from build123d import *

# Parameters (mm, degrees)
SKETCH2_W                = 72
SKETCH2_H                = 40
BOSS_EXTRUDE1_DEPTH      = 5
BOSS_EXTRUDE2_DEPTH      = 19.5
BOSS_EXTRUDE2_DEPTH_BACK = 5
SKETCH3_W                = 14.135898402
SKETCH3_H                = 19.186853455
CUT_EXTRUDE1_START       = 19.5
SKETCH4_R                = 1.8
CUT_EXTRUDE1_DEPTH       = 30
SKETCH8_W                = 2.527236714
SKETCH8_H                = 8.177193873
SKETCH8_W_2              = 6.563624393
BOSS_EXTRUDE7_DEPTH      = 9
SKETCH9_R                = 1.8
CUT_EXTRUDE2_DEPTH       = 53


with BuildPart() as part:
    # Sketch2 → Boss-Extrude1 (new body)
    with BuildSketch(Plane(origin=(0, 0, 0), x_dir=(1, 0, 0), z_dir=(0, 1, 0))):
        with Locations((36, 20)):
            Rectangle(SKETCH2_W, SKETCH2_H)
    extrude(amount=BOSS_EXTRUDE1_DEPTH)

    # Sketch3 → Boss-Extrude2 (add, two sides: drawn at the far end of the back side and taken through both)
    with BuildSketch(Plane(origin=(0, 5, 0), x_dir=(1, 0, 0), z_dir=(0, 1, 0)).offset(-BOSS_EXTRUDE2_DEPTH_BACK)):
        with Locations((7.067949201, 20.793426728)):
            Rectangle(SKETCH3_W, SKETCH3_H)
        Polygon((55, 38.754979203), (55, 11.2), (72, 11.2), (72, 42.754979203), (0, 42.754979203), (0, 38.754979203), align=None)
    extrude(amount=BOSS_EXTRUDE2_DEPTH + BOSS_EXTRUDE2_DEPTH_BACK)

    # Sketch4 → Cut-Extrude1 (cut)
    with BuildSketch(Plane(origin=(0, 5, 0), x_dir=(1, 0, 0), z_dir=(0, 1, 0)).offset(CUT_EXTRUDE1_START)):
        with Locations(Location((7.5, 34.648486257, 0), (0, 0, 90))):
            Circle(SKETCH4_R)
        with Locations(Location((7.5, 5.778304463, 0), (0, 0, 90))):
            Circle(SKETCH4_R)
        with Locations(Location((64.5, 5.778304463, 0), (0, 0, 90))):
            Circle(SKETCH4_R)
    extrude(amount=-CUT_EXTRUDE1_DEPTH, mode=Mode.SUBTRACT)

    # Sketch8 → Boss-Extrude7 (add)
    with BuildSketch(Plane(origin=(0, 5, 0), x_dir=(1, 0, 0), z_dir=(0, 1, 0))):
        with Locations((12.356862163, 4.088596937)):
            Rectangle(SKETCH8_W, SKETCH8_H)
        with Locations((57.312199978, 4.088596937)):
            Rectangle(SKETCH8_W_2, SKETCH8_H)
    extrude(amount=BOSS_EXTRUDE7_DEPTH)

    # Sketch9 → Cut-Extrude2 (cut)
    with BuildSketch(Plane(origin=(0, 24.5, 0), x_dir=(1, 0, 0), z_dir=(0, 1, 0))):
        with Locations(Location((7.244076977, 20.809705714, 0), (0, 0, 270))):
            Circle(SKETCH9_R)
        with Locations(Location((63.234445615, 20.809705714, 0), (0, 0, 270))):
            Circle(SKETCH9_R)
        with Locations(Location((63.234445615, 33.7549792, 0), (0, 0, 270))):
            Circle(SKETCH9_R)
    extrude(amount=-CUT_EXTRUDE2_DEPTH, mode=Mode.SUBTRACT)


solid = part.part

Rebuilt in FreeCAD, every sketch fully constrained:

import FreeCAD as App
import Part
import Sketcher

V = App.Vector

doc = App.newDocument("Part")
body = doc.addObject("PartDesign::Body", "Body")

# Sketch on XZ plane
sketch1 = doc.addObject("Sketcher::SketchObject", "Sketch")
body.addObject(sketch1)
sketch1.AttachmentSupport = (doc.XZ_Plane, [""])
sketch1.MapMode = "FlatFace"
sketch1.addGeometry(Part.LineSegment(V(0, -40, 0), V(0, 0, 0)), False)
sketch1.addGeometry(Part.LineSegment(V(0, 0, 0), V(72, 0, 0)), False)
sketch1.addGeometry(Part.LineSegment(V(72, 0, 0), V(72, -40, 0)), False)
sketch1.addGeometry(Part.LineSegment(V(72, -40, 0), V(0, -40, 0)), False)
sketch1.addConstraint(Sketcher.Constraint("Coincident", 0, 2, 1, 1))
sketch1.addConstraint(Sketcher.Constraint("Coincident", 1, 2, 2, 1))
sketch1.addConstraint(Sketcher.Constraint("Coincident", 2, 2, 3, 1))
sketch1.addConstraint(Sketcher.Constraint("Coincident", 3, 2, 0, 1))
sketch1.addConstraint(Sketcher.Constraint("Vertical", 0))
sketch1.addConstraint(Sketcher.Constraint("Horizontal", 1))
sketch1.addConstraint(Sketcher.Constraint("Vertical", 2))
sketch1.addConstraint(Sketcher.Constraint("Horizontal", 3))
sketch1.addConstraint(Sketcher.Constraint("Coincident", 0, 2, -1, 1))
sketch1.addConstraint(Sketcher.Constraint("DistanceX", 1, 1, 1, 2, 72.0))
sketch1.addConstraint(Sketcher.Constraint("DistanceY", 0, 1, 0, 2, 40.0))
pad1 = doc.addObject("PartDesign::Pad", "Pad")
body.addObject(pad1)
pad1.Profile = sketch1
pad1.Length = 5
pad1.Reversed = True

# Sketch on XZ plane
sketch2 = doc.addObject("Sketcher::SketchObject", "Sketch001")
body.addObject(sketch2)
sketch2.AttachmentSupport = (doc.XZ_Plane, [""])
sketch2.MapMode = "FlatFace"
sketch2.AttachmentOffset = App.Placement(V(0, 0, -5), App.Rotation())
sketch2.addGeometry(Part.LineSegment(V(0, -30.4, 0), V(0, -11.2, 0)), False)
sketch2.addGeometry(Part.LineSegment(V(0, -11.2, 0), V(14.1, -11.2, 0)), False)
sketch2.addGeometry(Part.LineSegment(V(14.1, -11.2, 0), V(14.1, -30.4, 0)), False)
sketch2.addGeometry(Part.LineSegment(V(14.1, -30.4, 0), V(0, -30.4, 0)), False)
sketch2.addGeometry(Part.LineSegment(V(55, -38.8, 0), V(55, -11.2, 0)), False)
sketch2.addGeometry(Part.LineSegment(V(55, -11.2, 0), V(72, -11.2, 0)), False)
sketch2.addGeometry(Part.LineSegment(V(72, -11.2, 0), V(72, -42.8, 0)), False)
sketch2.addGeometry(Part.LineSegment(V(72, -42.8, 0), V(0, -42.8, 0)), False)
sketch2.addGeometry(Part.LineSegment(V(0, -42.8, 0), V(0, -38.8, 0)), False)
sketch2.addGeometry(Part.LineSegment(V(0, -38.8, 0), V(55, -38.8, 0)), False)
sketch2.addConstraint(Sketcher.Constraint("Coincident", 0, 2, 1, 1))
sketch2.addConstraint(Sketcher.Constraint("Coincident", 1, 2, 2, 1))
sketch2.addConstraint(Sketcher.Constraint("Coincident", 2, 2, 3, 1))
sketch2.addConstraint(Sketcher.Constraint("Coincident", 3, 2, 0, 1))
sketch2.addConstraint(Sketcher.Constraint("Coincident", 4, 2, 5, 1))
sketch2.addConstraint(Sketcher.Constraint("Coincident", 5, 2, 6, 1))
sketch2.addConstraint(Sketcher.Constraint("Coincident", 6, 2, 7, 1))
sketch2.addConstraint(Sketcher.Constraint("Coincident", 7, 2, 8, 1))
sketch2.addConstraint(Sketcher.Constraint("Coincident", 8, 2, 9, 1))
sketch2.addConstraint(Sketcher.Constraint("Coincident", 9, 2, 4, 1))
sketch2.addConstraint(Sketcher.Constraint("Vertical", 0))
sketch2.addConstraint(Sketcher.Constraint("Horizontal", 1))
sketch2.addConstraint(Sketcher.Constraint("Vertical", 2))
sketch2.addConstraint(Sketcher.Constraint("Horizontal", 3))
sketch2.addConstraint(Sketcher.Constraint("Vertical", 4))
sketch2.addConstraint(Sketcher.Constraint("Horizontal", 5))
sketch2.addConstraint(Sketcher.Constraint("Vertical", 6))
sketch2.addConstraint(Sketcher.Constraint("Horizontal", 7))
sketch2.addConstraint(Sketcher.Constraint("Vertical", 8))
sketch2.addConstraint(Sketcher.Constraint("Horizontal", 9))
sketch2.addConstraint(Sketcher.Constraint("PointOnObject", 0, 2, -2))
sketch2.addConstraint(Sketcher.Constraint("PointOnObject", 7, 2, -2))
sketch2.addConstraint(Sketcher.Constraint("Horizontal", 1, 2, 4, 2))
sketch2.addConstraint(Sketcher.Constraint("DistanceX", 5, 1, 5, 2, 17.0))
sketch2.addConstraint(Sketcher.Constraint("DistanceX", 7, 2, 7, 1, 72.0))
sketch2.addConstraint(Sketcher.Constraint("DistanceY", 8, 1, 8, 2, 4.0))
sketch2.addConstraint(Sketcher.Constraint("DistanceY", 0, 2, -1, 1, 11.2))
sketch2.addConstraint(Sketcher.Constraint("DistanceX", 1, 1, 1, 2, 14.135898))
sketch2.addConstraint(Sketcher.Constraint("DistanceY", 4, 1, 4, 2, 27.554979))
sketch2.addConstraint(Sketcher.Constraint("DistanceY", 0, 1, 0, 2, 19.186853))
pad2 = doc.addObject("PartDesign::Pad", "Pad001")
body.addObject(pad2)
pad2.Profile = sketch2
pad2.Type = "TwoLengths"
pad2.Length = 19.5
pad2.Length2 = 5
pad2.Reversed = True

# Sketch on XZ plane
sketch3 = doc.addObject("Sketcher::SketchObject", "Sketch002")
body.addObject(sketch3)
sketch3.AttachmentSupport = (doc.XZ_Plane, [""])
sketch3.MapMode = "FlatFace"
sketch3.AttachmentOffset = App.Placement(V(0, 0, -24.5), App.Rotation())
sketch3.addGeometry(Part.Circle(V(7.5, -34.6, 0), V(0, 0, 1), 1.8), False)
sketch3.addGeometry(Part.Circle(V(7.5, -5.8, 0), V(0, 0, 1), 1.8), False)
sketch3.addGeometry(Part.Circle(V(64.5, -5.8, 0), V(0, 0, 1), 1.8), False)
sketch3.addConstraint(Sketcher.Constraint("Equal", 0, 1))
sketch3.addConstraint(Sketcher.Constraint("Equal", 1, 2))
sketch3.addConstraint(Sketcher.Constraint("Horizontal", 1, 3, 2, 3))
sketch3.addConstraint(Sketcher.Constraint("Vertical", 0, 3, 1, 3))
sketch3.addConstraint(Sketcher.Constraint("Diameter", 0, 3.6))
sketch3.addConstraint(Sketcher.Constraint("DistanceX", 1, 3, 2, 3, 57.0))
sketch3.addConstraint(Sketcher.Constraint("DistanceX", -1, 1, 0, 3, 7.5))
sketch3.addConstraint(Sketcher.Constraint("DistanceY", 0, 3, 1, 3, 28.870182))
sketch3.addConstraint(Sketcher.Constraint("DistanceY", 0, 3, -1, 1, 34.648486))
pocket1 = doc.addObject("PartDesign::Pocket", "Pocket")
body.addObject(pocket1)
pocket1.Profile = sketch3
pocket1.Length = 30
pocket1.Reversed = True

# Sketch on XZ plane
sketch4 = doc.addObject("Sketcher::SketchObject", "Sketch003")
body.addObject(sketch4)
sketch4.AttachmentSupport = (doc.XZ_Plane, [""])
sketch4.MapMode = "FlatFace"
sketch4.AttachmentOffset = App.Placement(V(0, 0, -5), App.Rotation())
sketch4.addGeometry(Part.LineSegment(V(11.1, -8.2, 0), V(11.1, 0, 0)), False)
sketch4.addGeometry(Part.LineSegment(V(11.1, 0, 0), V(13.6, 0, 0)), False)
sketch4.addGeometry(Part.LineSegment(V(13.6, 0, 0), V(13.6, -8.2, 0)), False)
sketch4.addGeometry(Part.LineSegment(V(13.6, -8.2, 0), V(11.1, -8.2, 0)), False)
sketch4.addGeometry(Part.LineSegment(V(54, -8.2, 0), V(54, 0, 0)), False)
sketch4.addGeometry(Part.LineSegment(V(54, 0, 0), V(60.6, 0, 0)), False)
sketch4.addGeometry(Part.LineSegment(V(60.6, 0, 0), V(60.6, -8.2, 0)), False)
sketch4.addGeometry(Part.LineSegment(V(60.6, -8.2, 0), V(54, -8.2, 0)), False)
sketch4.addConstraint(Sketcher.Constraint("Coincident", 0, 2, 1, 1))
sketch4.addConstraint(Sketcher.Constraint("Coincident", 1, 2, 2, 1))
sketch4.addConstraint(Sketcher.Constraint("Coincident", 2, 2, 3, 1))
sketch4.addConstraint(Sketcher.Constraint("Coincident", 3, 2, 0, 1))
sketch4.addConstraint(Sketcher.Constraint("Coincident", 4, 2, 5, 1))
sketch4.addConstraint(Sketcher.Constraint("Coincident", 5, 2, 6, 1))
sketch4.addConstraint(Sketcher.Constraint("Coincident", 6, 2, 7, 1))
sketch4.addConstraint(Sketcher.Constraint("Coincident", 7, 2, 4, 1))
sketch4.addConstraint(Sketcher.Constraint("Vertical", 0))
sketch4.addConstraint(Sketcher.Constraint("Horizontal", 1))
sketch4.addConstraint(Sketcher.Constraint("Vertical", 2))
sketch4.addConstraint(Sketcher.Constraint("Horizontal", 3))
sketch4.addConstraint(Sketcher.Constraint("Vertical", 4))
sketch4.addConstraint(Sketcher.Constraint("Horizontal", 5))
sketch4.addConstraint(Sketcher.Constraint("Vertical", 6))
sketch4.addConstraint(Sketcher.Constraint("Horizontal", 7))
sketch4.addConstraint(Sketcher.Constraint("PointOnObject", 0, 2, -1))
sketch4.addConstraint(Sketcher.Constraint("PointOnObject", 4, 2, -1))
sketch4.addConstraint(Sketcher.Constraint("Horizontal", 3, 2, 6, 2))
sketch4.addConstraint(Sketcher.Constraint("DistanceX", 1, 1, 1, 2, 2.527237))
sketch4.addConstraint(Sketcher.Constraint("DistanceX", 5, 1, 5, 2, 6.563624))
sketch4.addConstraint(Sketcher.Constraint("DistanceY", 0, 1, 0, 2, 8.177194))
sketch4.addConstraint(Sketcher.Constraint("DistanceX", -1, 1, 1, 2, 13.620481))
sketch4.addConstraint(Sketcher.Constraint("DistanceX", 1, 2, 5, 2, 46.973532))
pad3 = doc.addObject("PartDesign::Pad", "Pad002")
body.addObject(pad3)
pad3.Profile = sketch4
pad3.Length = 9
pad3.Reversed = True

# Sketch on XZ plane
sketch5 = doc.addObject("Sketcher::SketchObject", "Sketch004")
body.addObject(sketch5)
sketch5.AttachmentSupport = (doc.XZ_Plane, [""])
sketch5.MapMode = "FlatFace"
sketch5.AttachmentOffset = App.Placement(V(0, 0, -24.5), App.Rotation())
sketch5.addGeometry(Part.Circle(V(7.2, -20.8, 0), V(0, 0, 1), 1.8), False)
sketch5.addGeometry(Part.Circle(V(63.2, -20.8, 0), V(0, 0, 1), 1.8), False)
sketch5.addGeometry(Part.Circle(V(63.2, -33.8, 0), V(0, 0, 1), 1.8), False)
sketch5.addConstraint(Sketcher.Constraint("Equal", 0, 1))
sketch5.addConstraint(Sketcher.Constraint("Equal", 1, 2))
sketch5.addConstraint(Sketcher.Constraint("Horizontal", 0, 3, 1, 3))
sketch5.addConstraint(Sketcher.Constraint("Vertical", 1, 3, 2, 3))
sketch5.addConstraint(Sketcher.Constraint("Diameter", 0, 3.6))
sketch5.addConstraint(Sketcher.Constraint("DistanceY", 2, 3, -1, 1, 33.754979))
sketch5.addConstraint(Sketcher.Constraint("DistanceX", 0, 3, 1, 3, 55.990369))
sketch5.addConstraint(Sketcher.Constraint("DistanceX", -1, 1, 0, 3, 7.244077))
sketch5.addConstraint(Sketcher.Constraint("DistanceY", 0, 3, -1, 1, 20.809706))
pocket2 = doc.addObject("PartDesign::Pocket", "Pocket001")
body.addObject(pocket2)
pocket2.Profile = sketch5
pocket2.Length = 53
pocket2.Reversed = True

doc.recompute()
